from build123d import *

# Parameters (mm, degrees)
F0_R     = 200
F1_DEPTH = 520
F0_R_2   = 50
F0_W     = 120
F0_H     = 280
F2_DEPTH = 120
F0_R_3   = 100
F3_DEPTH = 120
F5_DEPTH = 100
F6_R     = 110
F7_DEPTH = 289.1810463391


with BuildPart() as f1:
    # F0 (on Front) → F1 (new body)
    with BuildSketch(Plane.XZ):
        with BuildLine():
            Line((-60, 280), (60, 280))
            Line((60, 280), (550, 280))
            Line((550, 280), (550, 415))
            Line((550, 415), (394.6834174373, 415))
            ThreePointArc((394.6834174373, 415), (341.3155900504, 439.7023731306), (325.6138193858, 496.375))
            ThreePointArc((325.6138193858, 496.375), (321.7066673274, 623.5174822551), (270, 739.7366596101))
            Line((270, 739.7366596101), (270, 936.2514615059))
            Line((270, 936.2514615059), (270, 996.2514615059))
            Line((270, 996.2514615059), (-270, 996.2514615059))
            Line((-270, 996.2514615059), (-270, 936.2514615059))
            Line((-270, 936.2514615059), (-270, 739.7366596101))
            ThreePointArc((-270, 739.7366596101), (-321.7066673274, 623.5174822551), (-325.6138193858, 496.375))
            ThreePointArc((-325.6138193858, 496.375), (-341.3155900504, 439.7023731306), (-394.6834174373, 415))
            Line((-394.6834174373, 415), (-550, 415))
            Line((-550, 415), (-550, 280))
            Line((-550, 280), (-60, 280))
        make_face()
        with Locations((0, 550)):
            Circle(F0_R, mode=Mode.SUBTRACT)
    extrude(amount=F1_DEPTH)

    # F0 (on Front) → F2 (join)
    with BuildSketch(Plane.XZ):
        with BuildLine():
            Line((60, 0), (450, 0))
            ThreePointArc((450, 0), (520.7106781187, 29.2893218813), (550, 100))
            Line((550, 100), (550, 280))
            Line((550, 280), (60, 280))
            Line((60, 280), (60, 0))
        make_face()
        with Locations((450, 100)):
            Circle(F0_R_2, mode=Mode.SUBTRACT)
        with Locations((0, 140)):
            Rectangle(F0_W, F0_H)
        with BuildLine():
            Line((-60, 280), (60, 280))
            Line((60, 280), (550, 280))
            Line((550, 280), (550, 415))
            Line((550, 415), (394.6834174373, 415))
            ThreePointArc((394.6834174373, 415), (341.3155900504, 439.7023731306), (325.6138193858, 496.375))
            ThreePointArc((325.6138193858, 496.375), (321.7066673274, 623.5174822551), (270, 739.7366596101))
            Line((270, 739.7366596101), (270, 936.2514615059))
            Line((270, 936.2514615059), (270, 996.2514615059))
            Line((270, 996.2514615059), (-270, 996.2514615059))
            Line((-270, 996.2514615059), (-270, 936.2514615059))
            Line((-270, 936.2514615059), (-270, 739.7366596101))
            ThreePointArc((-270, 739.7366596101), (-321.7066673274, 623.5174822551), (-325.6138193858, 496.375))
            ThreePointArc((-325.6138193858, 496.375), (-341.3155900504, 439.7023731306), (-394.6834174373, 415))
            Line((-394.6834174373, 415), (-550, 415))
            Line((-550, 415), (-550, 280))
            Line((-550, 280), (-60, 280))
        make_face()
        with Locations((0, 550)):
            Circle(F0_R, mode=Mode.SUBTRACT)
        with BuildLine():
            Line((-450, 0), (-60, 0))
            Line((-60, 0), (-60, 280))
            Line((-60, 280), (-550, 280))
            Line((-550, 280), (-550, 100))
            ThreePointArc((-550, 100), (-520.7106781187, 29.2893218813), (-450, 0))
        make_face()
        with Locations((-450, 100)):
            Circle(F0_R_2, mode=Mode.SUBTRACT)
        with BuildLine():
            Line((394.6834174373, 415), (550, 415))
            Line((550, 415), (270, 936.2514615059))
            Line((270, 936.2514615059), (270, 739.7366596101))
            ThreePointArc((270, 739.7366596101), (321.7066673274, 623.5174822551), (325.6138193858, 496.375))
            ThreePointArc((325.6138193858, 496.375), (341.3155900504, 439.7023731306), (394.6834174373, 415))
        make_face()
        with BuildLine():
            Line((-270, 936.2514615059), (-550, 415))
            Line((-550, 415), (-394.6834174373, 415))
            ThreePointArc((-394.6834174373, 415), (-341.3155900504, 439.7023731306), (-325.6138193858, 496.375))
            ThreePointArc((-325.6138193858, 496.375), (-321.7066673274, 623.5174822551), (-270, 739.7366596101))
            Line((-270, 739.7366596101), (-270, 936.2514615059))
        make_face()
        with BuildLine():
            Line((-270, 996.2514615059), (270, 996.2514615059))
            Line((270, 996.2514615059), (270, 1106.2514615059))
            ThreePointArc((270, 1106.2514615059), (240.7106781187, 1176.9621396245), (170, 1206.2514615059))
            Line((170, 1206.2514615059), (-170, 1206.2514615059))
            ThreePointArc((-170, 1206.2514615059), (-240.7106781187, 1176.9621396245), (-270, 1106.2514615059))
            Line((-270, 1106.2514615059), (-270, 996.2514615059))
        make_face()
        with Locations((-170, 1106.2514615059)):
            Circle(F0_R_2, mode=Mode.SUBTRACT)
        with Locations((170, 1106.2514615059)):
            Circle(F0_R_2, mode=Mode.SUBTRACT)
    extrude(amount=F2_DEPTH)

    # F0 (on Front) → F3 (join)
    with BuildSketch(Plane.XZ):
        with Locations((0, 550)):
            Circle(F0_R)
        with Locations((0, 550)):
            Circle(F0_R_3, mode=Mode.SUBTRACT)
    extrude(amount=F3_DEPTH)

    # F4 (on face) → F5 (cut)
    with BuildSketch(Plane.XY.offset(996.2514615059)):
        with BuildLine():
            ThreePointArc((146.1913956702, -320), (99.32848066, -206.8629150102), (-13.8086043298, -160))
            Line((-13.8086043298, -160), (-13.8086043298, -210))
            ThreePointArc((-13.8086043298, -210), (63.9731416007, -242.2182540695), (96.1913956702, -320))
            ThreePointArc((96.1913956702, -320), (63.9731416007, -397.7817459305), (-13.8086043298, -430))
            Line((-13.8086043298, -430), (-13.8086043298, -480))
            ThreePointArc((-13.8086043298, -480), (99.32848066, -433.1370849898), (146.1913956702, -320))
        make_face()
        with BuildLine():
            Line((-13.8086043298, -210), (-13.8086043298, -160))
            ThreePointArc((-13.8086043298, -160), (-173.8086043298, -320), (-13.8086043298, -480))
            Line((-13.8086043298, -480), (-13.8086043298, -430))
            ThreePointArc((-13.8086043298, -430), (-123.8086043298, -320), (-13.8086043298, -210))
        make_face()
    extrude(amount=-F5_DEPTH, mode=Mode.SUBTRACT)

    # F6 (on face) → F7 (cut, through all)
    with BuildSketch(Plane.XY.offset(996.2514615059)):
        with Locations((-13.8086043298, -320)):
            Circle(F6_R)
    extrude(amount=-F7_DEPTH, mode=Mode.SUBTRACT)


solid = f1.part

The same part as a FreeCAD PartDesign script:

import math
import FreeCAD as App
import Part
import Sketcher

doc = App.newDocument("Part")
params = doc.addObject("Spreadsheet::Sheet", "Params")
for row, (alias, value) in enumerate([
    ("sketch1_diameter", "400 mm"),
    ("sketch1_radius", "70 mm"),
    ("sketch1_radius2", "330 mm"),
    ("sketch1_width", "540 mm"),
    ("sketch1_width2", "1100 mm"),
    ("pad1_length", "520 mm"),
    ("sketch2_diameter", "100 mm"),
    ("sketch2_diameter2", "400 mm"),
    ("sketch2_radius", "100 mm"),
    ("sketch2_width", "340 mm"),
    ("sketch2_width2", "900 mm"),
    ("pad2_length", "120 mm"),
    ("sketch3_diameter", "400 mm"),
    ("sketch3_diameter2", "200 mm"),
    ("pad3_length", "120 mm"),
    ("sketch4_diameter", "220 mm"),
    ("sketch4_radius", "160 mm"),
    ("pocket1_length", "100 mm"),
    ("sketch5_diameter", "220 mm"),
    ("pocket2_length", "289.181046 mm"),
], start=1):
    params.set(f"A{row}", alias)
    params.set(f"B{row}", "=" + value)
    params.setAlias(f"B{row}", alias)

body = doc.addObject("PartDesign::Body", "Body")

# Sketch on XZ plane
sketch1 = body.newObject("Sketcher::SketchObject", "Sketch")
sketch1.AttachmentSupport = (doc.getObject("XZ_Plane"), [""])
sketch1.MapMode = "FlatFace"
sketch1.addGeometry([
    Part.LineSegment(App.Vector(550, 280, 0), App.Vector(550, 415, 0)),  # 0
    Part.LineSegment(App.Vector(550, 415, 0), App.Vector(395, 415, 0)),  # 1
    Part.ArcOfCircle(Part.Circle(App.Vector(395, 485, 0), App.Vector(0, 0, 1), 70), math.radians(171), math.radians(270)),  # 2
    Part.ArcOfCircle(Part.Circle(App.Vector(0, 550, 0), App.Vector(0, 0, 1), 330), math.radians(-9), math.radians(35)),  # 3
    Part.LineSegment(App.Vector(270, 740, 0), App.Vector(270, 996, 0)),  # 4
    Part.LineSegment(App.Vector(270, 996, 0), App.Vector(-270, 996, 0)),  # 5
    Part.LineSegment(App.Vector(-270, 996, 0), App.Vector(-270, 740, 0)),  # 6
    Part.ArcOfCircle(Part.Circle(App.Vector(0, 550, 0), App.Vector(0, 0, 1), 330), math.radians(145), math.radians(189)),  # 7
    Part.ArcOfCircle(Part.Circle(App.Vector(-395, 485, 0), App.Vector(0, 0, 1), 70), math.radians(-90), math.radians(9)),  # 8
    Part.LineSegment(App.Vector(-395, 415, 0), App.Vector(-550, 415, 0)),  # 9
    Part.LineSegment(App.Vector(-550, 415, 0), App.Vector(-550, 280, 0)),  # 10
    Part.LineSegment(App.Vector(-550, 280, 0), App.Vector(550, 280, 0)),  # 11
    Part.Circle(App.Vector(0, 550, 0), App.Vector(0, 0, 1), 200),  # 12
], False)
sketch1.addConstraint([
    Sketcher.Constraint("Coincident", 0, 2, 1, 1),
    Sketcher.Constraint("Tangent", 1, 2, 2, 2),
    Sketcher.Constraint("Tangent", 2, 1, 3, 1),
    Sketcher.Constraint("Coincident", 3, 2, 4, 1),
    Sketcher.Constraint("Coincident", 4, 2, 5, 1),
    Sketcher.Constraint("Coincident", 5, 2, 6, 1),
    Sketcher.Constraint("Coincident", 6, 2, 7, 1),
    Sketcher.Constraint("Tangent", 7, 2, 8, 2),
    Sketcher.Constraint("Tangent", 8, 1, 9, 1),
    Sketcher.Constraint("Coincident", 9, 2, 10, 1),
    Sketcher.Constraint("Coincident", 10, 2, 11, 1),
    Sketcher.Constraint("Coincident", 11, 2, 0, 1),
    Sketcher.Constraint("Vertical", 0),
    Sketcher.Constraint("Horizontal", 1),
    Sketcher.Constraint("Vertical", 4),
    Sketcher.Constraint("Horizontal", 5),
    Sketcher.Constraint("Vertical", 6),
    Sketcher.Constraint("Horizontal", 9),
    Sketcher.Constraint("Vertical", 10),
    Sketcher.Constraint("Horizontal", 11),
    Sketcher.Constraint("Coincident", 7, 3, 3, 3),
    Sketcher.Constraint("Coincident", 12, 3, 3, 3),
    Sketcher.Constraint("Equal", 3, 7),
    Sketcher.Constraint("Equal", 2, 8),
    Sketcher.Constraint("Symmetric", 2, 3, 8, 3, -2),
    Sketcher.Constraint("Horizontal", 3, 2, 6, 2),
    Sketcher.Constraint("Equal", 1, 9),
    Sketcher.Constraint("Diameter", 12, 400.0),
    Sketcher.Constraint("Radius", 2, 70.0),
    Sketcher.Constraint("Radius", 3, 330.0),
    Sketcher.Constraint("DistanceX", 5, 2, 5, 1, 540.0),
    Sketcher.Constraint("DistanceX", 11, 1, 11, 2, 1100.0),
    Sketcher.Constraint("DistanceY", 0, 1, 0, 2, 135.0),
    Sketcher.Constraint("DistanceY", -1, 1, 2, 3, 485.0),
    Sketcher.Constraint("DistanceY", -1, 1, 3, 3, 550.0),
    Sketcher.Constraint("DistanceY", 4, 1, 4, 2, 256.514802),
])
sketch1.setExpression("Constraints[27]", "Params.sketch1_diameter")
sketch1.setExpression("Constraints[28]", "Params.sketch1_radius")
sketch1.setExpression("Constraints[29]", "Params.sketch1_radius2")
sketch1.setExpression("Constraints[30]", "Params.sketch1_width")
sketch1.setExpression("Constraints[31]", "Params.sketch1_width2")
pad1 = body.newObject("PartDesign::Pad", "Pad")
pad1.Profile = sketch1
pad1.setExpression("Length", "Params.pad1_length")

# Sketch on XZ plane
sketch2 = body.newObject("Sketcher::SketchObject", "Sketch001")
sketch2.AttachmentSupport = (doc.getObject("XZ_Plane"), [""])
sketch2.MapMode = "FlatFace"
sketch2.addGeometry([
    Part.ArcOfCircle(Part.Circle(App.Vector(450, 100, 0), App.Vector(0, 0, 1), 100), math.radians(-90), math.radians(0)),  # 0
    Part.LineSegment(App.Vector(550, 100, 0), App.Vector(550, 415, 0)),  # 1
    Part.LineSegment(App.Vector(550, 415, 0), App.Vector(270, 936, 0)),  # 2
    Part.LineSegment(App.Vector(270, 936, 0), App.Vector(270, 1106, 0)),  # 3
    Part.ArcOfCircle(Part.Circle(App.Vector(170, 1106, 0), App.Vector(0, 0, 1), 100), math.radians(0), math.radians(90)),  # 4
    Part.LineSegment(App.Vector(170, 1206, 0), App.Vector(-170, 1206, 0)),  # 5
    Part.ArcOfCircle(Part.Circle(App.Vector(-170, 1106, 0), App.Vector(0, 0, 1), 100), math.radians(90), math.radians(180)),  # 6
    Part.LineSegment(App.Vector(-270, 1106, 0), App.Vector(-270, 936, 0)),  # 7
    Part.LineSegment(App.Vector(-270, 936, 0), App.Vector(-550, 415, 0)),  # 8
    Part.LineSegment(App.Vector(-550, 415, 0), App.Vector(-550, 100, 0)),  # 9
    Part.ArcOfCircle(Part.Circle(App.Vector(-450, 100, 0), App.Vector(0, 0, 1), 100), math.radians(180), math.radians(270)),  # 10
    Part.LineSegment(App.Vector(-450, 0, 0), App.Vector(450, 0, 0)),  # 11
    Part.Circle(App.Vector(-450, 100, 0), App.Vector(0, 0, 1), 50),  # 12
    Part.Circle(App.Vector(0, 550, 0), App.Vector(0, 0, 1), 200),  # 13
    Part.Circle(App.Vector(450, 100, 0), App.Vector(0, 0, 1), 50),  # 14
    Part.Circle(App.Vector(-170, 1106, 0), App.Vector(0, 0, 1), 50),  # 15
    Part.Circle(App.Vector(170, 1106, 0), App.Vector(0, 0, 1), 50),  # 16
], False)
sketch2.addConstraint([
    Sketcher.Constraint("Tangent", 0, 2, 1, 1),
    Sketcher.Constraint("Coincident", 1, 2, 2, 1),
    Sketcher.Constraint("Coincident", 2, 2, 3, 1),
    Sketcher.Constraint("Tangent", 3, 2, 4, 1),
    Sketcher.Constraint("Tangent", 4, 2, 5, 1),
    Sketcher.Constraint("Tangent", 5, 2, 6, 1),
    Sketcher.Constraint("Tangent", 6, 2, 7, 1),
    Sketcher.Constraint("Coincident", 7, 2, 8, 1),
    Sketcher.Constraint("Coincident", 8, 2, 9, 1),
    Sketcher.Constraint("Tangent", 9, 2, 10, 1),
    Sketcher.Constraint("Tangent", 10, 2, 11, 1),
    Sketcher.Constraint("Tangent", 11, 2, 0, 1),
    Sketcher.Constraint("Vertical", 1),
    Sketcher.Constraint("Vertical", 3),
    Sketcher.Constraint("Horizontal", 5),
    Sketcher.Constraint("Vertical", 7),
    Sketcher.Constraint("Vertical", 9),
    Sketcher.Constraint("Horizontal", 11),
    Sketcher.Constraint("Coincident", 12, 3, 10, 3),
    Sketcher.Constraint("Coincident", 14, 3, 0, 3),
    Sketcher.Constraint("Coincident", 15, 3, 6, 3),
    Sketcher.Constraint("Coincident", 16, 3, 4, 3),
    Sketcher.Constraint("Equal", 0, 4),
    Sketcher.Constraint("Equal", 4, 6),
    Sketcher.Constraint("Equal", 6, 10),
    Sketcher.Constraint("Equal", 12, 14),
    Sketcher.Constraint("Equal", 14, 15),
    Sketcher.Constraint("Equal", 15, 16),
    Sketcher.Constraint("Symmetric", 10, 2, 11, 2, -1, 1),
    Sketcher.Constraint("Symmetric", 2, 2, 7, 2, -2),
    Sketcher.Constraint("PointOnObject", 13, 3, -2),
    Sketcher.Constraint("Horizontal", 1, 2, 8, 2),
    Sketcher.Constraint("Diameter", 12, 100.0),
    Sketcher.Constraint("Diameter", 13, 400.0),
    Sketcher.Constraint("Radius", 0, 100.0),
    Sketcher.Constraint("DistanceX", 5, 2, 5, 1, 340.0),
    Sketcher.Constraint("DistanceX", 11, 1, 11, 2, 900.0),
    Sketcher.Constraint("DistanceY", 1, 1, 1, 2, 315.0),
    Sketcher.Constraint("DistanceY", 3, 1, 3, 2, 170.0),
    Sketcher.Constraint("DistanceY", -1, 1, 13, 3, 550.0),
    Sketcher.Constraint("DistanceY", -1, 1, 4, 3, 1106.251462),
])
sketch2.setExpression("Constraints[32]", "Params.sketch2_diameter")
sketch2.setExpression("Constraints[33]", "Params.sketch2_diameter2")
sketch2.setExpression("Constraints[34]", "Params.sketch2_radius")
sketch2.setExpression("Constraints[35]", "Params.sketch2_width")
sketch2.setExpression("Constraints[36]", "Params.sketch2_width2")
pad2 = body.newObject("PartDesign::Pad", "Pad001")
pad2.Profile = sketch2
pad2.setExpression("Length", "Params.pad2_length")

# Sketch on XZ plane
sketch3 = body.newObject("Sketcher::SketchObject", "Sketch002")
sketch3.AttachmentSupport = (doc.getObject("XZ_Plane"), [""])
sketch3.MapMode = "FlatFace"
sketch3.addGeometry([
    Part.Circle(App.Vector(0, 550, 0), App.Vector(0, 0, 1), 200),
    Part.Circle(App.Vector(0, 550, 0), App.Vector(0, 0, 1), 100),
], False)
sketch3.addConstraint([
    Sketcher.Constraint("Coincident", 1, 3, 0, 3),
    Sketcher.Constraint("PointOnObject", 0, 3, -2),
    Sketcher.Constraint("Diameter", 0, 400.0),
    Sketcher.Constraint("Diameter", 1, 200.0),
    Sketcher.Constraint("DistanceY", -1, 1, 0, 3, 550.0),
])
sketch3.setExpression("Constraints[2]", "Params.sketch3_diameter")
sketch3.setExpression("Constraints[3]", "Params.sketch3_diameter2")
pad3 = body.newObject("PartDesign::Pad", "Pad002")
pad3.Profile = sketch3
pad3.setExpression("Length", "Params.pad3_length")

# Sketch on XY plane
sketch4 = body.newObject("Sketcher::SketchObject", "Sketch003")
sketch4.AttachmentSupport = (doc.getObject("XY_Plane"), [""])
sketch4.MapMode = "FlatFace"
sketch4.AttachmentOffset = App.Placement(App.Vector(0, 0, 996.251462), App.Rotation())
sketch4.addGeometry([
    Part.ArcOfCircle(Part.Circle(App.Vector(-14, -320, 0), App.Vector(0, 0, 1), 160), math.radians(0), math.radians(90)),
    Part.ArcOfCircle(Part.Circle(App.Vector(-14, -320, 0), App.Vector(0, 0, 1), 160), math.radians(90), math.radians(270)),
    Part.ArcOfCircle(Part.Circle(App.Vector(-14, -320, 0), App.Vector(0, 0, 1), 160), math.radians(-90), math.radians(0)),
    Part.Circle(App.Vector(-14, -320, 0), App.Vector(0, 0, 1), 110),
], False)
sketch4.addConstraint([
    Sketcher.Constraint("Tangent", 0, 2, 1, 1),
    Sketcher.Constraint("Tangent", 1, 2, 2, 1),
    Sketcher.Constraint("Tangent", 2, 2, 0, 1),
    Sketcher.Constraint("Coincident", 3, 3, 0, 3),
    Sketcher.Constraint("Horizontal", 3, 3, 2, 2),
    Sketcher.Constraint("Vertical", 3, 3, 0, 2),
    Sketcher.Constraint("Vertical", 0, 2, 1, 2),
    Sketcher.Constraint("Diameter", 3, 220.0),
    Sketcher.Constraint("Radius", 0, 160.0),
    Sketcher.Constraint("DistanceY", 0, 3, -1, 1, 320.0),
    Sketcher.Constraint("DistanceX", 0, 3, -1, 1, 13.808604),
])
sketch4.setExpression("Constraints[7]", "Params.sketch4_diameter")
sketch4.setExpression("Constraints[8]", "Params.sketch4_radius")
pocket1 = body.newObject("PartDesign::Pocket", "Pocket")
pocket1.Profile = sketch4
pocket1.setExpression("Length", "Params.pocket1_length")

# Sketch on XY plane
sketch5 = body.newObject("Sketcher::SketchObject", "Sketch004")
sketch5.AttachmentSupport = (doc.getObject("XY_Plane"), [""])
sketch5.MapMode = "FlatFace"
sketch5.AttachmentOffset = App.Placement(App.Vector(0, 0, 996.251462), App.Rotation())
sketch5.addGeometry(Part.Circle(App.Vector(-14, -320, 0), App.Vector(0, 0, 1), 110), False)
sketch5.addConstraint([
    Sketcher.Constraint("Diameter", 0, 220.0),
    Sketcher.Constraint("DistanceY", 0, 3, -1, 1, 320.0),
    Sketcher.Constraint("DistanceX", 0, 3, -1, 1, 13.808604),
])
sketch5.setExpression("Constraints[0]", "Params.sketch5_diameter")
pocket2 = body.newObject("PartDesign::Pocket", "Pocket001")
pocket2.Profile = sketch5
pocket2.setExpression("Length", "Params.pocket2_length")

doc.recompute()
